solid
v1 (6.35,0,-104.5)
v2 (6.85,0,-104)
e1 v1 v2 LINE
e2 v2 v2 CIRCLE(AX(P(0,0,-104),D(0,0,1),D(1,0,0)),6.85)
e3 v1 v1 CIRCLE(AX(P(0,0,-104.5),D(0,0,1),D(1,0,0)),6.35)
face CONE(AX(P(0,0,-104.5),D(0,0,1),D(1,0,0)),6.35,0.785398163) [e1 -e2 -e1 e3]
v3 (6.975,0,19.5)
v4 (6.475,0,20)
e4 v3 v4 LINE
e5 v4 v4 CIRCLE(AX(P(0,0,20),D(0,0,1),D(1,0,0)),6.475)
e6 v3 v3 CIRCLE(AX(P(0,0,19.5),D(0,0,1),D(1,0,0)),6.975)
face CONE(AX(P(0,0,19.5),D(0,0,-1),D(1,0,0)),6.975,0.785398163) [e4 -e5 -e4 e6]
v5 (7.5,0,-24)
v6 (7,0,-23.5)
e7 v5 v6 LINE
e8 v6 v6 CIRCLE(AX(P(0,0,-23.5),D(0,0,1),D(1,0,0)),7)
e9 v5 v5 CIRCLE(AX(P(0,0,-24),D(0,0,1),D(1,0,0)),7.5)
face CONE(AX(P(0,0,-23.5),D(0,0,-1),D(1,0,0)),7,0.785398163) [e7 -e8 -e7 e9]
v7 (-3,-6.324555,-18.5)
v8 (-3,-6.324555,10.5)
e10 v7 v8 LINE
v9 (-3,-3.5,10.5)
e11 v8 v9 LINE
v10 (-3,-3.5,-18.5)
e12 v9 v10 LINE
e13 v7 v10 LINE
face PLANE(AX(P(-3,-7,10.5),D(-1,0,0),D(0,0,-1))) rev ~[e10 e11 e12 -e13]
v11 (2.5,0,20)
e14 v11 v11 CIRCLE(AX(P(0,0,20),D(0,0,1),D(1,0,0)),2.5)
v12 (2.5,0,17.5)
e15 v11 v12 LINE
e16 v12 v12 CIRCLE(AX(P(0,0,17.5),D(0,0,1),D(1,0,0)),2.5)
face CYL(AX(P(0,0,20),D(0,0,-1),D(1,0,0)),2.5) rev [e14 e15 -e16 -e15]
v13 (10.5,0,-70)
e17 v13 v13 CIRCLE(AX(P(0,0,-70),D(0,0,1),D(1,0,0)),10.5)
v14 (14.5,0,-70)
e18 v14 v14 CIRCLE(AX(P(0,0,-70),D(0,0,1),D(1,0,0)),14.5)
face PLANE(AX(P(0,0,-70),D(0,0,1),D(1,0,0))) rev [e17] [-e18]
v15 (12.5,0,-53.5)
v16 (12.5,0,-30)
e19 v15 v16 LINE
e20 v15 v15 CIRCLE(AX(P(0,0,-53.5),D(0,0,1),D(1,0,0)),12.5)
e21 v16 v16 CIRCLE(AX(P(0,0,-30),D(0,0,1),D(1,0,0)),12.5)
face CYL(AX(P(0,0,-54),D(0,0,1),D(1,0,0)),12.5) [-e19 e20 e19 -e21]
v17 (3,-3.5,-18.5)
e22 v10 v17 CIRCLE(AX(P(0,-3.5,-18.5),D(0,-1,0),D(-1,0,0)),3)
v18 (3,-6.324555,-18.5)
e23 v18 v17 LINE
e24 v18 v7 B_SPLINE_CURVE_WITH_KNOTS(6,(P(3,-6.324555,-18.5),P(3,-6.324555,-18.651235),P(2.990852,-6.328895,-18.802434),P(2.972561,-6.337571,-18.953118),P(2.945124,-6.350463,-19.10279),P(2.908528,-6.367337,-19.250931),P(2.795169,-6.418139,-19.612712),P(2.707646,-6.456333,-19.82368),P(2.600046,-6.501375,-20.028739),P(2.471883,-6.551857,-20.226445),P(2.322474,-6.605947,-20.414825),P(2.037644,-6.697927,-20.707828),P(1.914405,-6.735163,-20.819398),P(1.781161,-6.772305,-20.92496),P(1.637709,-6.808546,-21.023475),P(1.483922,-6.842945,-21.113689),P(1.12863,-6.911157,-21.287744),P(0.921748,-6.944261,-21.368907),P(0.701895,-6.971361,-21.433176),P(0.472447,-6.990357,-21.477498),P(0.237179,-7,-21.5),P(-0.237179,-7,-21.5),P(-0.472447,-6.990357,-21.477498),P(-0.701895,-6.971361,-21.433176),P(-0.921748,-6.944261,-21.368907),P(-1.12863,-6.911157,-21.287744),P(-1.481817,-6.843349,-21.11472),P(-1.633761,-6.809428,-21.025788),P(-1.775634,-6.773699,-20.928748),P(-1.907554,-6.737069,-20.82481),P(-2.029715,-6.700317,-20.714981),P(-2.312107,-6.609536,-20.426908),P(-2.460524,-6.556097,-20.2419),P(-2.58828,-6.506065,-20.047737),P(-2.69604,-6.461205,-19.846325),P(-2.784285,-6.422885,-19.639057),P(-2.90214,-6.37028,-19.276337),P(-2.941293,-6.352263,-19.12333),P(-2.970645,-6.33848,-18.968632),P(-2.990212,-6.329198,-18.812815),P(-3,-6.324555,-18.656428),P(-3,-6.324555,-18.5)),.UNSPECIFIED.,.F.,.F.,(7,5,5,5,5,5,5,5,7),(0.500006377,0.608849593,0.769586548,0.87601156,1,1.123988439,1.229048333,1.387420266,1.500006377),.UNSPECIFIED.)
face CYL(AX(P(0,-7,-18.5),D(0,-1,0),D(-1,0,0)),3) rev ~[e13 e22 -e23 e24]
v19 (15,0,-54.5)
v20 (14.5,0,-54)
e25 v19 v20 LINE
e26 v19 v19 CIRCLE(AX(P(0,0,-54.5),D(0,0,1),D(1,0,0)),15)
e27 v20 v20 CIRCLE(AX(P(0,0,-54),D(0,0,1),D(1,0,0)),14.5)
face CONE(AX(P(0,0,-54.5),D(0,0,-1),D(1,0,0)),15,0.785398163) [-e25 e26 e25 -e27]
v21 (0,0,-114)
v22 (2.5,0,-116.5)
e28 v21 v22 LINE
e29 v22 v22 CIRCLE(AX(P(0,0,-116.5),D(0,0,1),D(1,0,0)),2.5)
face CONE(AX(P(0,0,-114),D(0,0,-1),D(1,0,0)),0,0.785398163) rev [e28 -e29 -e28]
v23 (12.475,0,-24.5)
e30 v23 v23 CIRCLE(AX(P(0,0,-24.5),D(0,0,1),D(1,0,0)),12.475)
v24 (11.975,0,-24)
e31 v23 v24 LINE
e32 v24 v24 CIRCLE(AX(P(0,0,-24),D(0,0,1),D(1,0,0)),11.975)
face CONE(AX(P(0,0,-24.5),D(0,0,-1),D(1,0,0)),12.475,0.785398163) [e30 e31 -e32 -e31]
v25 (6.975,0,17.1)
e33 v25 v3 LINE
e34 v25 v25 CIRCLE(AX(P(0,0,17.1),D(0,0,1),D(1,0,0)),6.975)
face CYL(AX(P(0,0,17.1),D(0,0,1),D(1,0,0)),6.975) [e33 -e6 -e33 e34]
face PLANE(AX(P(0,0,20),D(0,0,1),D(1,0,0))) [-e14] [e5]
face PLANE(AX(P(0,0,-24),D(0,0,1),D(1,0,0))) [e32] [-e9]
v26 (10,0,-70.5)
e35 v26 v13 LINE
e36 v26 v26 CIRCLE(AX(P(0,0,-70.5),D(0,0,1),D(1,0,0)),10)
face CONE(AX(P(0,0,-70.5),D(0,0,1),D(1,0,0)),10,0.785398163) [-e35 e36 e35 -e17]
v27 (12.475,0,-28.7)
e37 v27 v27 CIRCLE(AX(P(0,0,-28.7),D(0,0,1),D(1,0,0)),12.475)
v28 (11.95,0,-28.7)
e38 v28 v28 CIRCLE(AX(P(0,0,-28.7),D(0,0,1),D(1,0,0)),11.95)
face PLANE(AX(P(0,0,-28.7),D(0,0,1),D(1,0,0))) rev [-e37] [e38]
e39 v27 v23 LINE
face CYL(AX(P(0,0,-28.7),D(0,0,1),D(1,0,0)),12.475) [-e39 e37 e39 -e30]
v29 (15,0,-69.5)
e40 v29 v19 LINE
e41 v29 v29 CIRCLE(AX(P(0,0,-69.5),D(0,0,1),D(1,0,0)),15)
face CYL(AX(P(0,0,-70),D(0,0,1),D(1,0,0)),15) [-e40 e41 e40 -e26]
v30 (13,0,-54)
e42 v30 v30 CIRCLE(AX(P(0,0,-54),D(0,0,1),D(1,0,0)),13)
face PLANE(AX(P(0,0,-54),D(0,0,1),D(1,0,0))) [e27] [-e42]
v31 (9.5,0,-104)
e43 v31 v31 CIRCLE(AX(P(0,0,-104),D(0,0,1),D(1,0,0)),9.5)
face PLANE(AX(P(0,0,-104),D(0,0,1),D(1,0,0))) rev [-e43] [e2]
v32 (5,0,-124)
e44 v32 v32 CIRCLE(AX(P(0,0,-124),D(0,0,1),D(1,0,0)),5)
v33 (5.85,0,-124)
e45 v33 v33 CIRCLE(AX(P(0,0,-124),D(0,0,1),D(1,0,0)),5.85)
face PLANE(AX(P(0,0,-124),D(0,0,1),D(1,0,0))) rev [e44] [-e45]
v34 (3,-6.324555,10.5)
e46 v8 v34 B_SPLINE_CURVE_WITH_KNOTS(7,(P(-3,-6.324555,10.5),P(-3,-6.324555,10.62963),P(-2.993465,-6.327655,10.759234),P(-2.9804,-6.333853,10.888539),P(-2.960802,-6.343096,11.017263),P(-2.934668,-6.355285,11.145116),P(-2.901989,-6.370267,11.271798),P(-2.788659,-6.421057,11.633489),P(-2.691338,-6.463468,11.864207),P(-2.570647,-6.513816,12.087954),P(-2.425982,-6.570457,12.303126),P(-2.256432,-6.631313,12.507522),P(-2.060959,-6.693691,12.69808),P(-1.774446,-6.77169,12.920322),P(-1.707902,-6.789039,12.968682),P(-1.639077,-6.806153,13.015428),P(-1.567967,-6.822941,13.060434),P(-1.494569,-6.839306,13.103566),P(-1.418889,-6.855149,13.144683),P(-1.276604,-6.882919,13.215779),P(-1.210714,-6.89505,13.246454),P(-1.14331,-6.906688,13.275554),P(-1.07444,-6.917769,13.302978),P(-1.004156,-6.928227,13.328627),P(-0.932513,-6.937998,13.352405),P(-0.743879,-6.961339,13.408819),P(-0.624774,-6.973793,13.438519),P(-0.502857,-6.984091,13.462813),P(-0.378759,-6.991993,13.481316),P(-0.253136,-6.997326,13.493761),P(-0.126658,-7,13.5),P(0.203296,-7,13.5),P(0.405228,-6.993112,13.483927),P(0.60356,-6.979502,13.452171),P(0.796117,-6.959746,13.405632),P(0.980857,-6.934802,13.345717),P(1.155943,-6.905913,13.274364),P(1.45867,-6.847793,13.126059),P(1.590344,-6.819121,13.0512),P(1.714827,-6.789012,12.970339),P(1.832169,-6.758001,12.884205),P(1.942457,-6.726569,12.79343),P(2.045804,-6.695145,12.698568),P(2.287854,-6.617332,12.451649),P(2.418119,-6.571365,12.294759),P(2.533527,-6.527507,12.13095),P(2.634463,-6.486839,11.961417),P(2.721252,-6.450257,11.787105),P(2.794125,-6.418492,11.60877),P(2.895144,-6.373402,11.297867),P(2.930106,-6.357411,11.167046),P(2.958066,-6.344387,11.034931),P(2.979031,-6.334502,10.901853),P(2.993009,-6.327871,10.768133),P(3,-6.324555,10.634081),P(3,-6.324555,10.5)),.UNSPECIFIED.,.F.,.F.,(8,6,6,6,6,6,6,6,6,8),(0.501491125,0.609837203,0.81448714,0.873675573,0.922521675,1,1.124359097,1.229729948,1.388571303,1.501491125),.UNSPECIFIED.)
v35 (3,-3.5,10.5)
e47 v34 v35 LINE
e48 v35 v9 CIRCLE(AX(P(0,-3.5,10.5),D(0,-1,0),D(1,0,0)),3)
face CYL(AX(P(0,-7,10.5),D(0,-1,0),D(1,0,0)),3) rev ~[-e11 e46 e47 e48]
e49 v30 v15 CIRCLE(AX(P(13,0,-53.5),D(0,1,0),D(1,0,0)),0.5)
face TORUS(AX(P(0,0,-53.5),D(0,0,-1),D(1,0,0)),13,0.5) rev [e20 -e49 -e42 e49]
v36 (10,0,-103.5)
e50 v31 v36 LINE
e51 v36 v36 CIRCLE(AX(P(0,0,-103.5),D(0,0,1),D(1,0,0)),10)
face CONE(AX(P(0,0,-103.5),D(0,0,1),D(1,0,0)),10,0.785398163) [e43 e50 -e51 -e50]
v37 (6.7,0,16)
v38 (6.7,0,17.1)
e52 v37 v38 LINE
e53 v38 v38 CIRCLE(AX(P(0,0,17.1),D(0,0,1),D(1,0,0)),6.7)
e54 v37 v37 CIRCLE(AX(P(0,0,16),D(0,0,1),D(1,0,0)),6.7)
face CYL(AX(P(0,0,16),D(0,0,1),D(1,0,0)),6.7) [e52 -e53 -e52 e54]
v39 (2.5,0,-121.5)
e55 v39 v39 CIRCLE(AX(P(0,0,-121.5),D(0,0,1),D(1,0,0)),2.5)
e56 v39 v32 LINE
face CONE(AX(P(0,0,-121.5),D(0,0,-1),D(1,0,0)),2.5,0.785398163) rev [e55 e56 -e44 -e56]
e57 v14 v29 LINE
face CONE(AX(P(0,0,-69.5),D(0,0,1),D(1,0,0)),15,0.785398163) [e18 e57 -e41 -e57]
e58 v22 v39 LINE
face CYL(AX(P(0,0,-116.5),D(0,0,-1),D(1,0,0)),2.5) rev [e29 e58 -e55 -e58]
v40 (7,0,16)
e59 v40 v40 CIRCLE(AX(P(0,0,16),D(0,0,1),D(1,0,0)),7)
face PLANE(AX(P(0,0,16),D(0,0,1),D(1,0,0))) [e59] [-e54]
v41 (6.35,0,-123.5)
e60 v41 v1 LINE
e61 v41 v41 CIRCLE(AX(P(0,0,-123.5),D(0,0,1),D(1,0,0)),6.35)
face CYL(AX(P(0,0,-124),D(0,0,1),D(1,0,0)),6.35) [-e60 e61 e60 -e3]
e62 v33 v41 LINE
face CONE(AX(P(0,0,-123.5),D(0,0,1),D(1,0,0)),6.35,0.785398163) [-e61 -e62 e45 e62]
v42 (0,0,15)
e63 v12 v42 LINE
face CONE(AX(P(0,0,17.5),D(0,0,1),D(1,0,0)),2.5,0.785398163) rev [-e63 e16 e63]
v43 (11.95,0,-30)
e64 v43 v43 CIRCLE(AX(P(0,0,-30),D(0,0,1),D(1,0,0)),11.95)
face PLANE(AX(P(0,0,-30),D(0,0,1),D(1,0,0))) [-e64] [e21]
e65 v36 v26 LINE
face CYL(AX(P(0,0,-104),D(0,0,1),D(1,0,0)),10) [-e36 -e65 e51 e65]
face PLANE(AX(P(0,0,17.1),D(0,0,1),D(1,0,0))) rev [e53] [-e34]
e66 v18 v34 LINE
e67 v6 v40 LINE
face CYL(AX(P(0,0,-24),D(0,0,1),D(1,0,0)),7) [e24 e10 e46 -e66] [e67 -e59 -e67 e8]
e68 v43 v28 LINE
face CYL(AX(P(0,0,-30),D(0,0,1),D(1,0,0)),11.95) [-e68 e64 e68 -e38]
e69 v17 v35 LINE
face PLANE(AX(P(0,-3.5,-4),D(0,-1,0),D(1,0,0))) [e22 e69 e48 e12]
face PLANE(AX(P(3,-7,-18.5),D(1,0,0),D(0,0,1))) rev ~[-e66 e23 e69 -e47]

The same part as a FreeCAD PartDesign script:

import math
import FreeCAD as App
import Part
import Sketcher


def edges_at(feature, points):
    """Names of the edges that pass closest to the given points."""
    edges = feature.Shape.Edges
    near = lambda p: min(range(len(edges)), key=lambda i: edges[i].distToShape(Part.Vertex(*p))[0])
    return sorted({f"Edge{near(p) + 1}" for p in points})


def add_polygon(sketch, points):
    """Adds a closed chain of lines whose ends are joined by coincident constraints."""
    first, n = sketch.GeometryCount, len(points)
    for a, b in zip(points, points[1:] + points[:1]):
        sketch.addGeometry(Part.LineSegment(App.Vector(*a, 0), App.Vector(*b, 0)), False)
    for i in range(n):
        sketch.addConstraint(Sketcher.Constraint("Coincident", first + i, 2, first + (i + 1) % n, 1))

doc = App.newDocument("Part")
body = doc.addObject("PartDesign::Body", "Body")

# Sketch on XZ plane
sketch1 = doc.addObject("Sketcher::SketchObject", "Sketch")
body.addObject(sketch1)
sketch1.AttachmentSupport = (doc.XZ_Plane, [""])
sketch1.MapMode = "FlatFace"
add_polygon(sketch1, [(0, 15), (0, -114), (2.5, -116.5), (2.5, -121.5), (5, -124), (6.35, -124), (6.35, -104), (10, -104), (10, -70), (15, -70), (15, -54), (12.5, -54), (12.5, -30), (11.95, -30), (11.95, -28.7), (12.47, -28.7), (12.47, -24), (7, -24), (7, 16), (6.7, 16), (6.7, 17.1), (6.97, 17.1), (6.97, 20), (2.5, 20), (2.5, 17.5)])  # lines 0-24
sketch1.addConstraint([
    Sketcher.Constraint("Vertical", 0),
    Sketcher.Constraint("Vertical", 2),
    Sketcher.Constraint("Horizontal", 4),
    Sketcher.Constraint("Vertical", 5),
    Sketcher.Constraint("Horizontal", 6),
    Sketcher.Constraint("Vertical", 7),
    Sketcher.Constraint("Horizontal", 8),
    Sketcher.Constraint("Vertical", 9),
    Sketcher.Constraint("Horizontal", 10),
    Sketcher.Constraint("Vertical", 11),
    Sketcher.Constraint("Horizontal", 12),
    Sketcher.Constraint("Vertical", 13),
    Sketcher.Constraint("Horizontal", 14),
    Sketcher.Constraint("Vertical", 15),
    Sketcher.Constraint("Horizontal", 16),
    Sketcher.Constraint("Vertical", 17),
    Sketcher.Constraint("Horizontal", 18),
    Sketcher.Constraint("Vertical", 19),
    Sketcher.Constraint("Horizontal", 20),
    Sketcher.Constraint("Vertical", 21),
    Sketcher.Constraint("Horizontal", 22),
    Sketcher.Constraint("Vertical", 23),
    Sketcher.Constraint("PointOnObject", 0, 2, -2),
    Sketcher.Constraint("Parallel", 1, 3),
    Sketcher.Constraint("Perpendicular", 3, 24),
    Sketcher.Constraint("Vertical", 2, 2, 22, 2),
    Sketcher.Constraint("Equal", 8, 2),
    Sketcher.Constraint("Equal", 10, 23),
    Sketcher.Constraint("Equal", 1, 3),
    Sketcher.Constraint("Equal", 3, 24),
    Sketcher.Constraint("DistanceX", 8, 1, 8, 2, 5.0),
    Sketcher.Constraint("DistanceY", 0, 2, 0, 1, 129.0),
    Sketcher.Constraint("DistanceY", 5, 1, 5, 2, 20.0),
    Sketcher.Constraint("DistanceY", 7, 1, 7, 2, 34.0),
    Sketcher.Constraint("DistanceY", 9, 1, 9, 2, 16.0),
    Sketcher.Constraint("DistanceY", 11, 1, 11, 2, 24.0),
    Sketcher.Constraint("DistanceY", 17, 1, 17, 2, 40.0),
    Sketcher.Constraint("DistanceX", 10, 2, 10, 1, 2.5),
    Sketcher.Constraint("DistanceX", 18, 2, 18, 1, 0.3),
    Sketcher.Constraint("DistanceY", 13, 1, 13, 2, 1.3),
    Sketcher.Constraint("DistanceY", 15, 1, 15, 2, 4.7),
    Sketcher.Constraint("DistanceY", 19, 1, 19, 2, 1.1),
    Sketcher.Constraint("DistanceY", 21, 1, 21, 2, 2.9),
    Sketcher.Constraint("DistanceY", 0, 2, -1, 1, 114.0),
    Sketcher.Constraint("DistanceX", -1, 1, 6, 2, 10.0),
    Sketcher.Constraint("DistanceX", -1, 1, 16, 2, 7.0),
    Sketcher.Constraint("DistanceX", 4, 1, 4, 2, 1.35),
    Sketcher.Constraint("DistanceX", 12, 2, 12, 1, 0.55),
    Sketcher.Constraint("DistanceX", 20, 2, 15, 2, 5.5),
    Sketcher.Constraint("DistanceX", 14, 1, 14, 2, 0.525),
])
revolution = doc.addObject("PartDesign::Revolution", "Revolution")
body.addObject(revolution)
revolution.Profile = sketch1
revolution.ReferenceAxis = (sketch1, ["V_Axis"])
revolution.Angle = 360
doc.recompute()

chamfer = doc.addObject("PartDesign::Chamfer", "Chamfer")
body.addObject(chamfer)
chamfer.Base = (revolution, edges_at(revolution, [
    (-6.975, 0, 20),
    (-12.475, 0, -24),
    (-7, 0, -24),
    (-6.35, 0, -104),
    (-10, 0, -104),
    (-6.35, 0, -124),
    (-15, 0, -54),
    (-10, 0, -70),
    (-15, 0, -70),
]))
chamfer.Size = 0.5
doc.recompute()

fillet = doc.addObject("PartDesign::Fillet", "Fillet")
body.addObject(fillet)
fillet.Base = (chamfer, edges_at(chamfer, [(-12.5, 0, -54)]))
fillet.Radius = 0.5

# Sketch on XZ plane
sketch2 = doc.addObject("Sketcher::SketchObject", "Sketch001")
body.addObject(sketch2)
sketch2.AttachmentSupport = (doc.XZ_Plane, [""])
sketch2.MapMode = "FlatFace"
sketch2.AttachmentOffset = App.Placement(App.Vector(0, 0, 7), App.Rotation())
sketch2.addGeometry([
    Part.LineSegment(App.Vector(3, -18.5, 0), App.Vector(3, 10.5, 0)),
    Part.ArcOfCircle(Part.Circle(App.Vector(0, 10.5, 0), App.Vector(0, 0, 1), 3), math.radians(0), math.radians(180)),
    Part.LineSegment(App.Vector(-3, 10.5, 0), App.Vector(-3, -18.5, 0)),
    Part.ArcOfCircle(Part.Circle(App.Vector(0, -18.5, 0), App.Vector(0, 0, 1), 3), math.radians(180), math.radians(360)),
], False)
sketch2.addConstraint([
    Sketcher.Constraint("Tangent", 0, 2, 1, 1),
    Sketcher.Constraint("Tangent", 1, 2, 2, 1),
    Sketcher.Constraint("Tangent", 2, 2, 3, 1),
    Sketcher.Constraint("Tangent", 3, 2, 0, 1),
    Sketcher.Constraint("Vertical", 0),
    Sketcher.Constraint("Vertical", 2),
    Sketcher.Constraint("PointOnObject", 1, 3, -2),
    Sketcher.Constraint("Radius", 1, 3.0),
    Sketcher.Constraint("DistanceY", 0, 1, 0, 2, 29.0),
    Sketcher.Constraint("DistanceY", -1, 1, 1, 3, 10.5),
])
pocket1 = doc.addObject("PartDesign::Pocket", "Pocket")
body.addObject(pocket1)
pocket1.Profile = sketch2
pocket1.Length = 3.5

doc.recompute()
